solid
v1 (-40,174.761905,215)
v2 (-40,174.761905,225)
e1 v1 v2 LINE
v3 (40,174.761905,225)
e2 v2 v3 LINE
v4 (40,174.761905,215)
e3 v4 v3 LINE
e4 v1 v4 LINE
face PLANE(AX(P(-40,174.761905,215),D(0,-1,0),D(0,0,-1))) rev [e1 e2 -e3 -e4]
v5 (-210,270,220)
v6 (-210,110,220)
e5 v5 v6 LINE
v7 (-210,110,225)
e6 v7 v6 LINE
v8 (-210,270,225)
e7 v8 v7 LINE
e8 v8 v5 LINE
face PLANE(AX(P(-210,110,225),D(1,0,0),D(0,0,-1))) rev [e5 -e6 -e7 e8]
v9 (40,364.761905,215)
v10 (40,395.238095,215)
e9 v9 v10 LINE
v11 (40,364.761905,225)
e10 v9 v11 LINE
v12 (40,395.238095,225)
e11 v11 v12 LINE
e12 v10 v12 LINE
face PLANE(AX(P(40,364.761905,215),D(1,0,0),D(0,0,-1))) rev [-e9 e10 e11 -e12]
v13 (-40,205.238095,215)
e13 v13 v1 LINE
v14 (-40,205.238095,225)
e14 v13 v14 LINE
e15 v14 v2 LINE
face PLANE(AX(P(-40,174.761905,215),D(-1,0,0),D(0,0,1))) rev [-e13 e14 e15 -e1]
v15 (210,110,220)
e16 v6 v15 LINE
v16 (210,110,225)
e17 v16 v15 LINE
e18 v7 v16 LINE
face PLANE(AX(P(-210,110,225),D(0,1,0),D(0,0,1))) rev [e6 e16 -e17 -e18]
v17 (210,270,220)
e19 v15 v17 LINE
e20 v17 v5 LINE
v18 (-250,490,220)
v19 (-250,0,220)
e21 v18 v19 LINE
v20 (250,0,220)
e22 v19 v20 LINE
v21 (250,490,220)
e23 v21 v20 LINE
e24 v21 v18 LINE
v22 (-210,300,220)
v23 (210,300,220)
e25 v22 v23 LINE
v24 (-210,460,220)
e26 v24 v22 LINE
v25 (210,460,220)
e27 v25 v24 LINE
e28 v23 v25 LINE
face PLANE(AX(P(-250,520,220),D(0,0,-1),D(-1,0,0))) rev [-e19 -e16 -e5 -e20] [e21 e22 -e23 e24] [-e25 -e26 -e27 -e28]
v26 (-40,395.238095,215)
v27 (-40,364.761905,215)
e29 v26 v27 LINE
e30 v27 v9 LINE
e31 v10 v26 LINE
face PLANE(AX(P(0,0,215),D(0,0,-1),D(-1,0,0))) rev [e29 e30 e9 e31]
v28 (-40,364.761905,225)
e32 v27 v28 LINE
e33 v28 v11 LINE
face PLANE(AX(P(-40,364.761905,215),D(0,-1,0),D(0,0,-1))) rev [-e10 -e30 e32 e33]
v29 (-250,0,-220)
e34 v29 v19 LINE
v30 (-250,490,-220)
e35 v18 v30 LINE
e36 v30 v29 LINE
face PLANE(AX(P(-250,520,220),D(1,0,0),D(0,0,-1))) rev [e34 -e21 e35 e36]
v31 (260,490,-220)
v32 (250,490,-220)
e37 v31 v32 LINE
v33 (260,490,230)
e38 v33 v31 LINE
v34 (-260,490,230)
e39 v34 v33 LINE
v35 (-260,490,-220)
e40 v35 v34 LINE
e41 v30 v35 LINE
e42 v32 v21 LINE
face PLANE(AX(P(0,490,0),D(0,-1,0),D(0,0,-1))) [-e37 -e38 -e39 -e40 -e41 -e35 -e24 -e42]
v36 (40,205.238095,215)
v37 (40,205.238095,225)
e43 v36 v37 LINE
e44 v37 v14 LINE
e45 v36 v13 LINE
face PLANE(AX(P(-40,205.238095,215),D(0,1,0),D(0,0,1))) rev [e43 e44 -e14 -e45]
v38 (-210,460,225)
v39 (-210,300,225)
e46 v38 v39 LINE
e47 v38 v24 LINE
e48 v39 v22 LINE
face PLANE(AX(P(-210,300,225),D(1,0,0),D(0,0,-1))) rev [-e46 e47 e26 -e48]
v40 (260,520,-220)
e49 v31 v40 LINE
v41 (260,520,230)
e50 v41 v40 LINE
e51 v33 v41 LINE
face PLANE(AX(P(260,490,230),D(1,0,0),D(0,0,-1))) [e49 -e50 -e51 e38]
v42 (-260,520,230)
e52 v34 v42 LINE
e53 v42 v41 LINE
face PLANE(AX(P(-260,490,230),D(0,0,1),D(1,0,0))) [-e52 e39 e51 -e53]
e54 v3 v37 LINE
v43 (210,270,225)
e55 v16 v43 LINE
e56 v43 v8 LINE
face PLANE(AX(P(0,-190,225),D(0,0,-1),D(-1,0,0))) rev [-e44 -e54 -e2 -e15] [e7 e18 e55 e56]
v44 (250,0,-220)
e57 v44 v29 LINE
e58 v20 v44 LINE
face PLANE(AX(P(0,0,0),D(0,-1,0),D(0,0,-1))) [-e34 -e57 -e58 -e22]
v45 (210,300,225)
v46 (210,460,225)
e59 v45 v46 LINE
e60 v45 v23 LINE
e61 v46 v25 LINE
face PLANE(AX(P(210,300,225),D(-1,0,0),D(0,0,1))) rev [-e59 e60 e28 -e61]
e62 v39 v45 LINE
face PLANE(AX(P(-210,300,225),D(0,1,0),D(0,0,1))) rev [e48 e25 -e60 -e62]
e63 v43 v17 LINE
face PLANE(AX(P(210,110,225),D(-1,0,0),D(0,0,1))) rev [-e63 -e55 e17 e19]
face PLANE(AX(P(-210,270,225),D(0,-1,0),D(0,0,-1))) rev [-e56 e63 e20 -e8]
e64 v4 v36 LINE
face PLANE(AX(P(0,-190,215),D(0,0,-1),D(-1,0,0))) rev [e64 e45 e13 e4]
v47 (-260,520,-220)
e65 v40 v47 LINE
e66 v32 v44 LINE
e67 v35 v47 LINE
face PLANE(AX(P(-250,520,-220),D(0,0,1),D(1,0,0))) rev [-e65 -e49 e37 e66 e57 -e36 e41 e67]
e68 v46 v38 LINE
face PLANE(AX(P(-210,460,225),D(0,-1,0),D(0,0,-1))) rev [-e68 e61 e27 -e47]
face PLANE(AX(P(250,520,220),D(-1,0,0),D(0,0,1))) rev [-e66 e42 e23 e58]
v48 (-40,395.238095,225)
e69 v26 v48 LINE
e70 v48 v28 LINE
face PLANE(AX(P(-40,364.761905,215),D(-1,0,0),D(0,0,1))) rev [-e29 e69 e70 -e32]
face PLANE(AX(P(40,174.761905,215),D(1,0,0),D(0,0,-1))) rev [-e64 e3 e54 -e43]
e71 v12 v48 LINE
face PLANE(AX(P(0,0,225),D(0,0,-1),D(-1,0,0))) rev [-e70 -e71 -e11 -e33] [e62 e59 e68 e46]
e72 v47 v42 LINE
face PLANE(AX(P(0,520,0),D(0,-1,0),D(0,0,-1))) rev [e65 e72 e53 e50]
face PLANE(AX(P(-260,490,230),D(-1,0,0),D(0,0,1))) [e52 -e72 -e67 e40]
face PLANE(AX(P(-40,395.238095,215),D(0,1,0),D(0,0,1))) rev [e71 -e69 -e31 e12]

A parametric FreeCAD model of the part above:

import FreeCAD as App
import Part
import Sketcher
from FreeCAD import Vector

doc = App.newDocument("Part")
params = doc.addObject("Spreadsheet::Sheet", "Params")
for row, (alias, value) in enumerate([
    ("sketch1_width", "500 mm"),
    ("sketch1_height", "440 mm"),
    ("pad1_length", "520 mm"),
    ("sketch2_width", "520 mm"),
    ("sketch2_height", "450 mm"),
    ("pad2_length", "30 mm"),
    ("sketch3_width", "420 mm"),
    ("sketch3_height", "160 mm"),
    ("pad3_length", "5 mm"),
    ("sketch4_width", "80 mm"),
    ("pocket1_length", "10 mm"),
    ("linearpattern_pitch", "190 mm"),
], start=1):
    params.set(f"A{row}", alias)
    params.set(f"B{row}", "=" + value)
    params.setAlias(f"B{row}", alias)

body = doc.addObject("PartDesign::Body", "Body")

# Sketch on XZ plane
sketch1 = doc.addObject("Sketcher::SketchObject", "Sketch")
body.addObject(sketch1)
sketch1.AttachmentSupport = (doc.XZ_Plane, [""])
sketch1.MapMode = "FlatFace"
sketch1.addGeometry(Part.LineSegment(Vector(-250, -220, 0), Vector(-250, 220, 0)), False)
sketch1.addGeometry(Part.LineSegment(Vector(-250, 220, 0), Vector(250, 220, 0)), False)
sketch1.addGeometry(Part.LineSegment(Vector(250, 220, 0), Vector(250, -220, 0)), False)
sketch1.addGeometry(Part.LineSegment(Vector(250, -220, 0), Vector(-250, -220, 0)), False)
sketch1.addConstraint(Sketcher.Constraint("Coincident", 0, 2, 1, 1))
sketch1.addConstraint(Sketcher.Constraint("Coincident", 1, 2, 2, 1))
sketch1.addConstraint(Sketcher.Constraint("Coincident", 2, 2, 3, 1))
sketch1.addConstraint(Sketcher.Constraint("Coincident", 3, 2, 0, 1))
sketch1.addConstraint(Sketcher.Constraint("Vertical", 0))
sketch1.addConstraint(Sketcher.Constraint("Horizontal", 1))
sketch1.addConstraint(Sketcher.Constraint("Vertical", 2))
sketch1.addConstraint(Sketcher.Constraint("Horizontal", 3))
sketch1.addConstraint(Sketcher.Constraint("Symmetric", 0, 2, 2, 2, -1, 1))
sketch1.addConstraint(Sketcher.Constraint("DistanceX", 1, 1, 1, 2, 500.0))
sketch1.addConstraint(Sketcher.Constraint("DistanceY", 0, 1, 0, 2, 440.0))
sketch1.setExpression("Constraints[9]", "Params.sketch1_width")
sketch1.setExpression("Constraints[10]", "Params.sketch1_height")
pad1 = doc.addObject("PartDesign::Pad", "Pad")
body.addObject(pad1)
pad1.Profile = sketch1
pad1.setExpression("Length", "Params.pad1_length")
pad1.Reversed = True

# Sketch on XZ plane
sketch2 = doc.addObject("Sketcher::SketchObject", "Sketch001")
body.addObject(sketch2)
sketch2.AttachmentSupport = (doc.XZ_Plane, [""])
sketch2.MapMode = "FlatFace"
sketch2.AttachmentOffset = App.Placement(Vector(0, 0, -520), App.Rotation())
sketch2.addGeometry(Part.LineSegment(Vector(-260, -220, 0), Vector(-260, 230, 0)), False)
sketch2.addGeometry(Part.LineSegment(Vector(-260, 230, 0), Vector(260, 230, 0)), False)
sketch2.addGeometry(Part.LineSegment(Vector(260, 230, 0), Vector(260, -220, 0)), False)
sketch2.addGeometry(Part.LineSegment(Vector(260, -220, 0), Vector(-260, -220, 0)), False)
sketch2.addConstraint(Sketcher.Constraint("Coincident", 0, 2, 1, 1))
sketch2.addConstraint(Sketcher.Constraint("Coincident", 1, 2, 2, 1))
sketch2.addConstraint(Sketcher.Constraint("Coincident", 2, 2, 3, 1))
sketch2.addConstraint(Sketcher.Constraint("Coincident", 3, 2, 0, 1))
sketch2.addConstraint(Sketcher.Constraint("Vertical", 0))
sketch2.addConstraint(Sketcher.Constraint("Horizontal", 1))
sketch2.addConstraint(Sketcher.Constraint("Vertical", 2))
sketch2.addConstraint(Sketcher.Constraint("Horizontal", 3))
sketch2.addConstraint(Sketcher.Constraint("DistanceX", 1, 1, 1, 2, 520.0))
sketch2.addConstraint(Sketcher.Constraint("DistanceY", 0, 1, 0, 2, 450.0))
sketch2.addConstraint(Sketcher.Constraint("DistanceX", 0, 2, -1, 1, 260.0))
sketch2.addConstraint(Sketcher.Constraint("DistanceY", -1, 1, 0, 2, 230.0))
sketch2.setExpression("Constraints[8]", "Params.sketch2_width")
sketch2.setExpression("Constraints[9]", "Params.sketch2_height")
pad2 = doc.addObject("PartDesign::Pad", "Pad001")
body.addObject(pad2)
pad2.Profile = sketch2
pad2.setExpression("Length", "Params.pad2_length")

# Sketch on XY plane
sketch3 = doc.addObject("Sketcher::SketchObject", "Sketch002")
body.addObject(sketch3)
sketch3.AttachmentSupport = (doc.XY_Plane, [""])
sketch3.MapMode = "FlatFace"
sketch3.AttachmentOffset = App.Placement(Vector(0, 0, 220), App.Rotation())
sketch3.addGeometry(Part.LineSegment(Vector(-210, 460, 0), Vector(-210, 300, 0)), False)
sketch3.addGeometry(Part.LineSegment(Vector(-210, 300, 0), Vector(210, 300, 0)), False)
sketch3.addGeometry(Part.LineSegment(Vector(210, 300, 0), Vector(210, 460, 0)), False)
sketch3.addGeometry(Part.LineSegment(Vector(210, 460, 0), Vector(-210, 460, 0)), False)
sketch3.addConstraint(Sketcher.Constraint("Coincident", 0, 2, 1, 1))
sketch3.addConstraint(Sketcher.Constraint("Coincident", 1, 2, 2, 1))
sketch3.addConstraint(Sketcher.Constraint("Coincident", 2, 2, 3, 1))
sketch3.addConstraint(Sketcher.Constraint("Coincident", 3, 2, 0, 1))
sketch3.addConstraint(Sketcher.Constraint("Vertical", 0))
sketch3.addConstraint(Sketcher.Constraint("Horizontal", 1))
sketch3.addConstraint(Sketcher.Constraint("Vertical", 2))
sketch3.addConstraint(Sketcher.Constraint("Horizontal", 3))
sketch3.addConstraint(Sketcher.Constraint("DistanceX", 1, 1, 1, 2, 420.0))
sketch3.addConstraint(Sketcher.Constraint("DistanceY", 0, 2, 0, 1, 160.0))
sketch3.addConstraint(Sketcher.Constraint("DistanceX", 0, 2, -1, 1, 210.0))
sketch3.addConstraint(Sketcher.Constraint("DistanceY", -1, 1, 0, 2, 300.0))
sketch3.setExpression("Constraints[8]", "Params.sketch3_width")
sketch3.setExpression("Constraints[9]", "Params.sketch3_height")
pad3 = doc.addObject("PartDesign::Pad", "Pad002")
body.addObject(pad3)
pad3.Profile = sketch3
pad3.setExpression("Length", "Params.pad3_length")

# Sketch on XY plane
sketch4 = doc.addObject("Sketcher::SketchObject", "Sketch003")
body.addObject(sketch4)
sketch4.AttachmentSupport = (doc.XY_Plane, [""])
sketch4.MapMode = "FlatFace"
sketch4.AttachmentOffset = App.Placement(Vector(0, 0, 225), App.Rotation())
sketch4.addGeometry(Part.LineSegment(Vector(-40, 395, 0), Vector(-40, 365, 0)), False)
sketch4.addGeometry(Part.LineSegment(Vector(-40, 365, 0), Vector(40, 365, 0)), False)
sketch4.addGeometry(Part.LineSegment(Vector(40, 365, 0), Vector(40, 395, 0)), False)
sketch4.addGeometry(Part.LineSegment(Vector(40, 395, 0), Vector(-40, 395, 0)), False)
sketch4.addConstraint(Sketcher.Constraint("Coincident", 0, 2, 1, 1))
sketch4.addConstraint(Sketcher.Constraint("Coincident", 1, 2, 2, 1))
sketch4.addConstraint(Sketcher.Constraint("Coincident", 2, 2, 3, 1))
sketch4.addConstraint(Sketcher.Constraint("Coincident", 3, 2, 0, 1))
sketch4.addConstraint(Sketcher.Constraint("Vertical", 0))
sketch4.addConstraint(Sketcher.Constraint("Horizontal", 1))
sketch4.addConstraint(Sketcher.Constraint("Vertical", 2))
sketch4.addConstraint(Sketcher.Constraint("Horizontal", 3))
sketch4.addConstraint(Sketcher.Constraint("DistanceX", 1, 1, 1, 2, 80.0))
sketch4.addConstraint(Sketcher.Constraint("DistanceX", 0, 2, -1, 1, 40.0))
sketch4.addConstraint(Sketcher.Constraint("DistanceY", 0, 2, 0, 1, 30.47619))
sketch4.addConstraint(Sketcher.Constraint("DistanceY", -1, 1, 0, 2, 364.761905))
sketch4.setExpression("Constraints[8]", "Params.sketch4_width")
pocket1 = doc.addObject("PartDesign::Pocket", "Pocket")
body.addObject(pocket1)
pocket1.Profile = sketch4
pocket1.setExpression("Length", "Params.pocket1_length")
doc.recompute()

linearpattern = doc.addObject("PartDesign::LinearPattern", "LinearPattern")
body.addObject(linearpattern)
linearpattern.Originals = [pad3, pocket1]
linearpattern.Direction = (doc.Y_Axis, [""])
linearpattern.Mode = "offset"
linearpattern.setExpression("Offset", "Params.linearpattern_pitch")
linearpattern.Occurrences = 2
linearpattern.Reversed = True
body.Tip = linearpattern

doc.recompute()
